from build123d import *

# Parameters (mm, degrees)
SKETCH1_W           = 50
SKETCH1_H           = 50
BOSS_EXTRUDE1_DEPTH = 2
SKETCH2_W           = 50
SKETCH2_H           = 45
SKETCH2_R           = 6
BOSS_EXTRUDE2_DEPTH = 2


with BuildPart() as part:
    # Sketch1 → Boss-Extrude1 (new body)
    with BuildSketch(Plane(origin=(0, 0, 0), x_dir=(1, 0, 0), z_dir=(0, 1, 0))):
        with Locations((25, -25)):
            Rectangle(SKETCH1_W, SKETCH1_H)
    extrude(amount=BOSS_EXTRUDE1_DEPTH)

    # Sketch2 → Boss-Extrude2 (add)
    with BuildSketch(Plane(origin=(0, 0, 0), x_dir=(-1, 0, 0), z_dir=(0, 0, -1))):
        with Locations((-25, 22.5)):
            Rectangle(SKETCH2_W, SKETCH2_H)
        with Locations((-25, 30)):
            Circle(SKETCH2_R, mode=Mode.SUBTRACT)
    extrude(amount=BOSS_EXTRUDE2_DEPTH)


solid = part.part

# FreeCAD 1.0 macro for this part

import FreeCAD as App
import Part
import Sketcher
Q = App.Units.Quantity

doc = App.newDocument("Part")
body = doc.addObject("PartDesign::Body", "Body")

# Sketch on XZ plane
sketch1 = doc.addObject("Sketcher::SketchObject", "Sketch")
body.addObject(sketch1)
sketch1.AttachmentSupport = (doc.XZ_Plane, [""])
sketch1.MapMode = "FlatFace"
sketch1.addGeometry([
    Part.LineSegment(App.Vector(0, 0, 0), App.Vector(0, 50, 0)),
    Part.LineSegment(App.Vector(0, 50, 0), App.Vector(50, 50, 0)),
    Part.LineSegment(App.Vector(50, 50, 0), App.Vector(50, 0, 0)),
    Part.LineSegment(App.Vector(50, 0, 0), App.Vector(0, 0, 0)),
], False)
sketch1.addConstraint([
    Sketcher.Constraint("Coincident", 0, 2, 1, 1),
    Sketcher.Constraint("Coincident", 1, 2, 2, 1),
    Sketcher.Constraint("Coincident", 2, 2, 3, 1),
    Sketcher.Constraint("Coincident", 3, 2, 0, 1),
    Sketcher.Constraint("Vertical", 0),
    Sketcher.Constraint("Horizontal", 1),
    Sketcher.Constraint("Vertical", 2),
    Sketcher.Constraint("Horizontal", 3),
    Sketcher.Constraint("Coincident", 3, 2, -1, 1),
    Sketcher.Constraint("Equal", 3, 0),
    Sketcher.Constraint("DistanceX", 1, 1, 1, 2, Q("50 mm")),
])
pad1 = doc.addObject("PartDesign::Pad", "Pad")
body.addObject(pad1)
pad1.Profile = sketch1
pad1.Length = 2
pad1.Reversed = True

# Sketch on XY plane
sketch2 = doc.addObject("Sketcher::SketchObject", "Sketch001")
body.addObject(sketch2)
sketch2.AttachmentSupport = (doc.XY_Plane, [""])
sketch2.MapMode = "FlatFace"
sketch2.addGeometry([
    Part.LineSegment(App.Vector(50, 45, 0), App.Vector(50, 0, 0)),  # 0
    Part.LineSegment(App.Vector(50, 0, 0), App.Vector(0, 0, 0)),  # 1
    Part.LineSegment(App.Vector(0, 0, 0), App.Vector(0, 45, 0)),  # 2
    Part.LineSegment(App.Vector(0, 45, 0), App.Vector(50, 45, 0)),  # 3
    Part.Circle(App.Vector(25, 30, 0), App.Vector(0, 0, 1), 6),  # 4
], False)
sketch2.addConstraint([
    Sketcher.Constraint("Coincident", 0, 2, 1, 1),
    Sketcher.Constraint("Coincident", 1, 2, 2, 1),
    Sketcher.Constraint("Coincident", 2, 2, 3, 1),
    Sketcher.Constraint("Coincident", 3, 2, 0, 1),
    Sketcher.Constraint("Vertical", 0),
    Sketcher.Constraint("Horizontal", 1),
    Sketcher.Constraint("Vertical", 2),
    Sketcher.Constraint("Horizontal", 3),
    Sketcher.Constraint("Coincident", 1, 2, -1, 1),
    Sketcher.Constraint("Diameter", 4, Q("12 mm")),
    Sketcher.Constraint("DistanceX", 1, 2, 1, 1, Q("50 mm")),
    Sketcher.Constraint("DistanceY", 0, 2, 0, 1, Q("45 mm")),
    Sketcher.Constraint("DistanceX", -1, 1, 4, 3, Q("25 mm")),
    Sketcher.Constraint("DistanceY", -1, 1, 4, 3, Q("30 mm")),
])
pad2 = doc.addObject("PartDesign::Pad", "Pad001")
body.addObject(pad2)
pad2.Profile = sketch2
pad2.Length = 2
pad2.Reversed = True

doc.recompute()
